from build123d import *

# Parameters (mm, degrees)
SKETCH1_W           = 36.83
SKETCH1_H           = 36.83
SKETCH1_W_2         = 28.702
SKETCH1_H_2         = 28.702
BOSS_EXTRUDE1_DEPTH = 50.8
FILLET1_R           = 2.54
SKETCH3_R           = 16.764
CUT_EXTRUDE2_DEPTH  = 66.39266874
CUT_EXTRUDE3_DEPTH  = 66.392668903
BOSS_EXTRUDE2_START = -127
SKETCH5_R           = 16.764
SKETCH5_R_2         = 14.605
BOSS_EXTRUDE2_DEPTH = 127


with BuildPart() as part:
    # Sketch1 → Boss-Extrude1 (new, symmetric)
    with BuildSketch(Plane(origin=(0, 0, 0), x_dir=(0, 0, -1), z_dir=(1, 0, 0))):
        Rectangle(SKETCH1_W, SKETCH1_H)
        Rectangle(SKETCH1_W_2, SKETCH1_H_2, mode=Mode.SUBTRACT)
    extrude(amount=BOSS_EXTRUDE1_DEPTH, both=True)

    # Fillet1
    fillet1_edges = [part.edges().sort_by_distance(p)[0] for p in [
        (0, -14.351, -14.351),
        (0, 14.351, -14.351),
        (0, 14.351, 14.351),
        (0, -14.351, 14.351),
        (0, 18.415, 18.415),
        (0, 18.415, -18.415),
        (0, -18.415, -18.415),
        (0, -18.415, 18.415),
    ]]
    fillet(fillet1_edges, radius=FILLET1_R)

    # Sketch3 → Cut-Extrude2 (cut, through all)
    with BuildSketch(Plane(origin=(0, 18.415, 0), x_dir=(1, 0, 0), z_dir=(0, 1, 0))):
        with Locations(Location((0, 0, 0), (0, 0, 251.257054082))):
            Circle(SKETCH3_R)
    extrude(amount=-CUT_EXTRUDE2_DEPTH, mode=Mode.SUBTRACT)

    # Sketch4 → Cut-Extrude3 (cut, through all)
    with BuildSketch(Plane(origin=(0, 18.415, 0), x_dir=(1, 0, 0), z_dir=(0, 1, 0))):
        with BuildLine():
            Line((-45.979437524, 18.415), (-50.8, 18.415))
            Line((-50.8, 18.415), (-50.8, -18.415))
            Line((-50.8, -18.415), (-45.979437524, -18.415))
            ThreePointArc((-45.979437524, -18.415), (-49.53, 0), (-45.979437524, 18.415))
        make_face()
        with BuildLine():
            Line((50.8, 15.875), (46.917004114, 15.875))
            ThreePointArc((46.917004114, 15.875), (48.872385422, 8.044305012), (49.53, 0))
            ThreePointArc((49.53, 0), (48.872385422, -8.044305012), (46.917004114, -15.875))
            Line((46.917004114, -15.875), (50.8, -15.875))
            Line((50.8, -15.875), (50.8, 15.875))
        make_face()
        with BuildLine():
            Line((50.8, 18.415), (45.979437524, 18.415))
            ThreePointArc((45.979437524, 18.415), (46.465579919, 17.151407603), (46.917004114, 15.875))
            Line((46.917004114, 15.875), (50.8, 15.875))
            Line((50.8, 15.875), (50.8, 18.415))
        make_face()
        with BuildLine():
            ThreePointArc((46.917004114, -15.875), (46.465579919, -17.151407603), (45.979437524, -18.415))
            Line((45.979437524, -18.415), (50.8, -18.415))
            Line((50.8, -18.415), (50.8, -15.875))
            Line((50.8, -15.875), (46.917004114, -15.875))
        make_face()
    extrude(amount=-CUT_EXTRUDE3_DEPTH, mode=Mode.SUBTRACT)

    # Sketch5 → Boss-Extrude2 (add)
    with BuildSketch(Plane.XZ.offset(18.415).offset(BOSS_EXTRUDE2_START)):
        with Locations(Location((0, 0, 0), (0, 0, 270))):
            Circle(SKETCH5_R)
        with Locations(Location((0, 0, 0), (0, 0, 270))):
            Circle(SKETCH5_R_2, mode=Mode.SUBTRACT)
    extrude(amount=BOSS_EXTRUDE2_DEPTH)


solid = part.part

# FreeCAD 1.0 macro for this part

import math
import FreeCAD as App
import Part
import Sketcher

V = App.Vector
Q = App.Units.Quantity


def edges_at(feature, points):
    """Names of the edges that pass closest to the given points."""
    edges = feature.Shape.Edges
    near = lambda p: min(range(len(edges)), key=lambda i: edges[i].distToShape(Part.Vertex(*p))[0])
    return sorted({f"Edge{near(p) + 1}" for p in points})

doc = App.newDocument("Part")
body = doc.addObject("PartDesign::Body", "Body")

# Sketch on YZ plane
sketch1 = body.newObject("Sketcher::SketchObject", "Sketch")
sketch1.AttachmentSupport = (doc.getObject("YZ_Plane"), [""])
sketch1.MapMode = "FlatFace"
sketch1.addGeometry([
    Part.LineSegment(V(18, 18, 0), V(-18, 18, 0)),  # 0
    Part.LineSegment(V(-18, 18, 0), V(-18, -18, 0)),  # 1
    Part.LineSegment(V(-18, -18, 0), V(18, -18, 0)),  # 2
    Part.LineSegment(V(18, -18, 0), V(18, 18, 0)),  # 3
    Part.LineSegment(V(-14, -14, 0), V(-14, 14, 0)),  # 4
    Part.LineSegment(V(-14, 14, 0), V(14, 14, 0)),  # 5
    Part.LineSegment(V(14, 14, 0), V(14, -14, 0)),  # 6
    Part.LineSegment(V(14, -14, 0), V(-14, -14, 0)),  # 7
], False)
sketch1.addConstraint([
    Sketcher.Constraint("Coincident", 0, 2, 1, 1),
    Sketcher.Constraint("Coincident", 1, 2, 2, 1),
    Sketcher.Constraint("Coincident", 2, 2, 3, 1),
    Sketcher.Constraint("Coincident", 3, 2, 0, 1),
    Sketcher.Constraint("Coincident", 4, 2, 5, 1),
    Sketcher.Constraint("Coincident", 5, 2, 6, 1),
    Sketcher.Constraint("Coincident", 6, 2, 7, 1),
    Sketcher.Constraint("Coincident", 7, 2, 4, 1),
    Sketcher.Constraint("Horizontal", 0),
    Sketcher.Constraint("Vertical", 1),
    Sketcher.Constraint("Horizontal", 2),
    Sketcher.Constraint("Vertical", 3),
    Sketcher.Constraint("Vertical", 4),
    Sketcher.Constraint("Horizontal", 5),
    Sketcher.Constraint("Vertical", 6),
    Sketcher.Constraint("Horizontal", 7),
    Sketcher.Constraint("Symmetric", 0, 2, 2, 2, -1, 1),
    Sketcher.Constraint("Symmetric", 4, 2, 6, 2, -1, 1),
    Sketcher.Constraint("Equal", 2, 1),
    Sketcher.Constraint("Equal", 7, 4),
    Sketcher.Constraint("DistanceX", 0, 2, 0, 1, Q("1.45 in")),
    Sketcher.Constraint("DistanceX", 5, 1, 5, 2, Q("1.13 in")),
])
pad1 = body.newObject("PartDesign::Pad", "Pad")
pad1.Profile = sketch1
pad1.Length = Q("4 in")
pad1.Midplane = True
doc.recompute()

fillet = body.newObject("PartDesign::Fillet", "Fillet")
fillet.Base = (pad1, edges_at(pad1, [
    (0, -14.351, -14.351),
    (0, 14.351, -14.351),
    (0, 14.351, 14.351),
    (0, -14.351, 14.351),
    (0, 18.415, 18.415),
    (0, 18.415, -18.415),
    (0, -18.415, -18.415),
    (0, -18.415, 18.415),
]))
fillet.Radius = Q("0.1 in")

# Sketch on XZ plane
sketch2 = body.newObject("Sketcher::SketchObject", "Sketch001")
sketch2.AttachmentSupport = (doc.getObject("XZ_Plane"), [""])
sketch2.MapMode = "FlatFace"
sketch2.AttachmentOffset = App.Placement(V(0, 0, -0.725 * 25.4), App.Rotation())
sketch2.addGeometry(Part.Circle(V(0, 0, 0), V(0, 0, 1), 17), False)
sketch2.addConstraint([
    Sketcher.Constraint("Coincident", 0, 3, -1, 1),
    Sketcher.Constraint("Diameter", 0, Q("1.32 in")),
])
pocket1 = body.newObject("PartDesign::Pocket", "Pocket")
pocket1.Profile = sketch2
pocket1.Type = "ThroughAll"
pocket1.Reversed = True

# Sketch on XZ plane
sketch3 = body.newObject("Sketcher::SketchObject", "Sketch002")
sketch3.AttachmentSupport = (doc.getObject("XZ_Plane"), [""])
sketch3.MapMode = "FlatFace"
sketch3.AttachmentOffset = App.Placement(V(0, 0, -0.725 * 25.4), App.Rotation())
sketch3.addGeometry([
    Part.LineSegment(V(-46, -18.4, 0), V(-50.8, -18.4, 0)),  # 0
    Part.LineSegment(V(-50.8, -18.4, 0), V(-50.8, 18.4, 0)),  # 1
    Part.LineSegment(V(-50.8, 18.4, 0), V(-46, 18.4, 0)),  # 2
    Part.ArcOfCircle(Part.Circle(V(0, 0, 0), V(0, 0, 1), 49.5), math.radians(158), math.radians(202)),  # 3
    Part.ArcOfCircle(Part.Circle(V(0, 0, 0), V(0, 0, 1), 49.5), math.radians(-18.69), math.radians(0)),  # 4
    Part.ArcOfCircle(Part.Circle(V(0, 0, 0), V(0, 0, 1), 49.5), math.radians(0), math.radians(18.69)),  # 5
    Part.ArcOfCircle(Part.Circle(V(0, 0, 0), V(0, 0, 1), 49.5), math.radians(18.69), math.radians(21.83)),  # 6
    Part.LineSegment(V(46, 18.4, 0), V(50.8, 18.4, 0)),  # 7
    Part.LineSegment(V(50.8, 18.4, 0), V(50.8, -18.4, 0)),  # 8
    Part.LineSegment(V(50.8, -18.4, 0), V(46, -18.4, 0)),  # 9
    Part.ArcOfCircle(Part.Circle(V(0, 0, 0), V(0, 0, 1), 49.5), math.radians(-21.83), math.radians(-18.69)),  # 10
], False)
sketch3.addConstraint([
    Sketcher.Constraint("Coincident", 0, 2, 1, 1),
    Sketcher.Constraint("Coincident", 1, 2, 2, 1),
    Sketcher.Constraint("Coincident", 2, 2, 3, 1),
    Sketcher.Constraint("Coincident", 3, 2, 0, 1),
    Sketcher.Constraint("Tangent", 4, 2, 5, 1),
    Sketcher.Constraint("Tangent", 5, 2, 6, 1),
    Sketcher.Constraint("Coincident", 6, 2, 7, 1),
    Sketcher.Constraint("Coincident", 7, 2, 8, 1),
    Sketcher.Constraint("Coincident", 8, 2, 9, 1),
    Sketcher.Constraint("Coincident", 9, 2, 10, 1),
    Sketcher.Constraint("Tangent", 10, 2, 4, 1),
    Sketcher.Constraint("Horizontal", 0),
    Sketcher.Constraint("Vertical", 1),
    Sketcher.Constraint("Horizontal", 2),
    Sketcher.Constraint("Horizontal", 7),
    Sketcher.Constraint("Vertical", 8),
    Sketcher.Constraint("Horizontal", 9),
    Sketcher.Constraint("Coincident", 3, 3, -1, 1),
    Sketcher.Constraint("Coincident", 4, 3, -1, 1),
    Sketcher.Constraint("Coincident", 6, 3, -1, 1),
    Sketcher.Constraint("Equal", 3, 4),
    Sketcher.Constraint("Equal", 6, 10),
    Sketcher.Constraint("Symmetric", 0, 2, 7, 2, -1, 1),
    Sketcher.Constraint("PointOnObject", 4, 2, -1),
    Sketcher.Constraint("Horizontal", 2, 2, 6, 2),
    Sketcher.Constraint("Horizontal", 3, 2, 8, 2),
    Sketcher.Constraint("Vertical", 5, 2, 10, 2),
    Sketcher.Constraint("Radius", 3, Q("1.95 in")),
    Sketcher.Constraint("DistanceX", 0, 2, -1, 1, Q("2 in")),
    Sketcher.Constraint("DistanceY", 1, 1, 1, 2, Q("1.45 in")),
    Sketcher.Constraint("DistanceY", 5, 2, 6, 2, Q("0.1 in")),
])
pocket2 = body.newObject("PartDesign::Pocket", "Pocket001")
pocket2.Profile = sketch3
pocket2.Type = "ThroughAll"
pocket2.Reversed = True

# Sketch on XZ plane
sketch4 = body.newObject("Sketcher::SketchObject", "Sketch003")
sketch4.AttachmentSupport = (doc.getObject("XZ_Plane"), [""])
sketch4.MapMode = "FlatFace"
sketch4.AttachmentOffset = App.Placement(V(0, 0, -4.275 * 25.4), App.Rotation())
sketch4.addGeometry([
    Part.Circle(V(0, 0, 0), V(0, 0, 1), 17),
    Part.Circle(V(0, 0, 0), V(0, 0, 1), 15),
], False)
sketch4.addConstraint([
    Sketcher.Constraint("Coincident", 0, 3, -1, 1),
    Sketcher.Constraint("Coincident", 1, 3, -1, 1),
    Sketcher.Constraint("Diameter", 0, Q("1.32 in")),
    Sketcher.Constraint("Diameter", 1, Q("1.15 in")),
])
pad2 = body.newObject("PartDesign::Pad", "Pad001")
pad2.Profile = sketch4
pad2.Length = Q("5 in")

doc.recompute()
